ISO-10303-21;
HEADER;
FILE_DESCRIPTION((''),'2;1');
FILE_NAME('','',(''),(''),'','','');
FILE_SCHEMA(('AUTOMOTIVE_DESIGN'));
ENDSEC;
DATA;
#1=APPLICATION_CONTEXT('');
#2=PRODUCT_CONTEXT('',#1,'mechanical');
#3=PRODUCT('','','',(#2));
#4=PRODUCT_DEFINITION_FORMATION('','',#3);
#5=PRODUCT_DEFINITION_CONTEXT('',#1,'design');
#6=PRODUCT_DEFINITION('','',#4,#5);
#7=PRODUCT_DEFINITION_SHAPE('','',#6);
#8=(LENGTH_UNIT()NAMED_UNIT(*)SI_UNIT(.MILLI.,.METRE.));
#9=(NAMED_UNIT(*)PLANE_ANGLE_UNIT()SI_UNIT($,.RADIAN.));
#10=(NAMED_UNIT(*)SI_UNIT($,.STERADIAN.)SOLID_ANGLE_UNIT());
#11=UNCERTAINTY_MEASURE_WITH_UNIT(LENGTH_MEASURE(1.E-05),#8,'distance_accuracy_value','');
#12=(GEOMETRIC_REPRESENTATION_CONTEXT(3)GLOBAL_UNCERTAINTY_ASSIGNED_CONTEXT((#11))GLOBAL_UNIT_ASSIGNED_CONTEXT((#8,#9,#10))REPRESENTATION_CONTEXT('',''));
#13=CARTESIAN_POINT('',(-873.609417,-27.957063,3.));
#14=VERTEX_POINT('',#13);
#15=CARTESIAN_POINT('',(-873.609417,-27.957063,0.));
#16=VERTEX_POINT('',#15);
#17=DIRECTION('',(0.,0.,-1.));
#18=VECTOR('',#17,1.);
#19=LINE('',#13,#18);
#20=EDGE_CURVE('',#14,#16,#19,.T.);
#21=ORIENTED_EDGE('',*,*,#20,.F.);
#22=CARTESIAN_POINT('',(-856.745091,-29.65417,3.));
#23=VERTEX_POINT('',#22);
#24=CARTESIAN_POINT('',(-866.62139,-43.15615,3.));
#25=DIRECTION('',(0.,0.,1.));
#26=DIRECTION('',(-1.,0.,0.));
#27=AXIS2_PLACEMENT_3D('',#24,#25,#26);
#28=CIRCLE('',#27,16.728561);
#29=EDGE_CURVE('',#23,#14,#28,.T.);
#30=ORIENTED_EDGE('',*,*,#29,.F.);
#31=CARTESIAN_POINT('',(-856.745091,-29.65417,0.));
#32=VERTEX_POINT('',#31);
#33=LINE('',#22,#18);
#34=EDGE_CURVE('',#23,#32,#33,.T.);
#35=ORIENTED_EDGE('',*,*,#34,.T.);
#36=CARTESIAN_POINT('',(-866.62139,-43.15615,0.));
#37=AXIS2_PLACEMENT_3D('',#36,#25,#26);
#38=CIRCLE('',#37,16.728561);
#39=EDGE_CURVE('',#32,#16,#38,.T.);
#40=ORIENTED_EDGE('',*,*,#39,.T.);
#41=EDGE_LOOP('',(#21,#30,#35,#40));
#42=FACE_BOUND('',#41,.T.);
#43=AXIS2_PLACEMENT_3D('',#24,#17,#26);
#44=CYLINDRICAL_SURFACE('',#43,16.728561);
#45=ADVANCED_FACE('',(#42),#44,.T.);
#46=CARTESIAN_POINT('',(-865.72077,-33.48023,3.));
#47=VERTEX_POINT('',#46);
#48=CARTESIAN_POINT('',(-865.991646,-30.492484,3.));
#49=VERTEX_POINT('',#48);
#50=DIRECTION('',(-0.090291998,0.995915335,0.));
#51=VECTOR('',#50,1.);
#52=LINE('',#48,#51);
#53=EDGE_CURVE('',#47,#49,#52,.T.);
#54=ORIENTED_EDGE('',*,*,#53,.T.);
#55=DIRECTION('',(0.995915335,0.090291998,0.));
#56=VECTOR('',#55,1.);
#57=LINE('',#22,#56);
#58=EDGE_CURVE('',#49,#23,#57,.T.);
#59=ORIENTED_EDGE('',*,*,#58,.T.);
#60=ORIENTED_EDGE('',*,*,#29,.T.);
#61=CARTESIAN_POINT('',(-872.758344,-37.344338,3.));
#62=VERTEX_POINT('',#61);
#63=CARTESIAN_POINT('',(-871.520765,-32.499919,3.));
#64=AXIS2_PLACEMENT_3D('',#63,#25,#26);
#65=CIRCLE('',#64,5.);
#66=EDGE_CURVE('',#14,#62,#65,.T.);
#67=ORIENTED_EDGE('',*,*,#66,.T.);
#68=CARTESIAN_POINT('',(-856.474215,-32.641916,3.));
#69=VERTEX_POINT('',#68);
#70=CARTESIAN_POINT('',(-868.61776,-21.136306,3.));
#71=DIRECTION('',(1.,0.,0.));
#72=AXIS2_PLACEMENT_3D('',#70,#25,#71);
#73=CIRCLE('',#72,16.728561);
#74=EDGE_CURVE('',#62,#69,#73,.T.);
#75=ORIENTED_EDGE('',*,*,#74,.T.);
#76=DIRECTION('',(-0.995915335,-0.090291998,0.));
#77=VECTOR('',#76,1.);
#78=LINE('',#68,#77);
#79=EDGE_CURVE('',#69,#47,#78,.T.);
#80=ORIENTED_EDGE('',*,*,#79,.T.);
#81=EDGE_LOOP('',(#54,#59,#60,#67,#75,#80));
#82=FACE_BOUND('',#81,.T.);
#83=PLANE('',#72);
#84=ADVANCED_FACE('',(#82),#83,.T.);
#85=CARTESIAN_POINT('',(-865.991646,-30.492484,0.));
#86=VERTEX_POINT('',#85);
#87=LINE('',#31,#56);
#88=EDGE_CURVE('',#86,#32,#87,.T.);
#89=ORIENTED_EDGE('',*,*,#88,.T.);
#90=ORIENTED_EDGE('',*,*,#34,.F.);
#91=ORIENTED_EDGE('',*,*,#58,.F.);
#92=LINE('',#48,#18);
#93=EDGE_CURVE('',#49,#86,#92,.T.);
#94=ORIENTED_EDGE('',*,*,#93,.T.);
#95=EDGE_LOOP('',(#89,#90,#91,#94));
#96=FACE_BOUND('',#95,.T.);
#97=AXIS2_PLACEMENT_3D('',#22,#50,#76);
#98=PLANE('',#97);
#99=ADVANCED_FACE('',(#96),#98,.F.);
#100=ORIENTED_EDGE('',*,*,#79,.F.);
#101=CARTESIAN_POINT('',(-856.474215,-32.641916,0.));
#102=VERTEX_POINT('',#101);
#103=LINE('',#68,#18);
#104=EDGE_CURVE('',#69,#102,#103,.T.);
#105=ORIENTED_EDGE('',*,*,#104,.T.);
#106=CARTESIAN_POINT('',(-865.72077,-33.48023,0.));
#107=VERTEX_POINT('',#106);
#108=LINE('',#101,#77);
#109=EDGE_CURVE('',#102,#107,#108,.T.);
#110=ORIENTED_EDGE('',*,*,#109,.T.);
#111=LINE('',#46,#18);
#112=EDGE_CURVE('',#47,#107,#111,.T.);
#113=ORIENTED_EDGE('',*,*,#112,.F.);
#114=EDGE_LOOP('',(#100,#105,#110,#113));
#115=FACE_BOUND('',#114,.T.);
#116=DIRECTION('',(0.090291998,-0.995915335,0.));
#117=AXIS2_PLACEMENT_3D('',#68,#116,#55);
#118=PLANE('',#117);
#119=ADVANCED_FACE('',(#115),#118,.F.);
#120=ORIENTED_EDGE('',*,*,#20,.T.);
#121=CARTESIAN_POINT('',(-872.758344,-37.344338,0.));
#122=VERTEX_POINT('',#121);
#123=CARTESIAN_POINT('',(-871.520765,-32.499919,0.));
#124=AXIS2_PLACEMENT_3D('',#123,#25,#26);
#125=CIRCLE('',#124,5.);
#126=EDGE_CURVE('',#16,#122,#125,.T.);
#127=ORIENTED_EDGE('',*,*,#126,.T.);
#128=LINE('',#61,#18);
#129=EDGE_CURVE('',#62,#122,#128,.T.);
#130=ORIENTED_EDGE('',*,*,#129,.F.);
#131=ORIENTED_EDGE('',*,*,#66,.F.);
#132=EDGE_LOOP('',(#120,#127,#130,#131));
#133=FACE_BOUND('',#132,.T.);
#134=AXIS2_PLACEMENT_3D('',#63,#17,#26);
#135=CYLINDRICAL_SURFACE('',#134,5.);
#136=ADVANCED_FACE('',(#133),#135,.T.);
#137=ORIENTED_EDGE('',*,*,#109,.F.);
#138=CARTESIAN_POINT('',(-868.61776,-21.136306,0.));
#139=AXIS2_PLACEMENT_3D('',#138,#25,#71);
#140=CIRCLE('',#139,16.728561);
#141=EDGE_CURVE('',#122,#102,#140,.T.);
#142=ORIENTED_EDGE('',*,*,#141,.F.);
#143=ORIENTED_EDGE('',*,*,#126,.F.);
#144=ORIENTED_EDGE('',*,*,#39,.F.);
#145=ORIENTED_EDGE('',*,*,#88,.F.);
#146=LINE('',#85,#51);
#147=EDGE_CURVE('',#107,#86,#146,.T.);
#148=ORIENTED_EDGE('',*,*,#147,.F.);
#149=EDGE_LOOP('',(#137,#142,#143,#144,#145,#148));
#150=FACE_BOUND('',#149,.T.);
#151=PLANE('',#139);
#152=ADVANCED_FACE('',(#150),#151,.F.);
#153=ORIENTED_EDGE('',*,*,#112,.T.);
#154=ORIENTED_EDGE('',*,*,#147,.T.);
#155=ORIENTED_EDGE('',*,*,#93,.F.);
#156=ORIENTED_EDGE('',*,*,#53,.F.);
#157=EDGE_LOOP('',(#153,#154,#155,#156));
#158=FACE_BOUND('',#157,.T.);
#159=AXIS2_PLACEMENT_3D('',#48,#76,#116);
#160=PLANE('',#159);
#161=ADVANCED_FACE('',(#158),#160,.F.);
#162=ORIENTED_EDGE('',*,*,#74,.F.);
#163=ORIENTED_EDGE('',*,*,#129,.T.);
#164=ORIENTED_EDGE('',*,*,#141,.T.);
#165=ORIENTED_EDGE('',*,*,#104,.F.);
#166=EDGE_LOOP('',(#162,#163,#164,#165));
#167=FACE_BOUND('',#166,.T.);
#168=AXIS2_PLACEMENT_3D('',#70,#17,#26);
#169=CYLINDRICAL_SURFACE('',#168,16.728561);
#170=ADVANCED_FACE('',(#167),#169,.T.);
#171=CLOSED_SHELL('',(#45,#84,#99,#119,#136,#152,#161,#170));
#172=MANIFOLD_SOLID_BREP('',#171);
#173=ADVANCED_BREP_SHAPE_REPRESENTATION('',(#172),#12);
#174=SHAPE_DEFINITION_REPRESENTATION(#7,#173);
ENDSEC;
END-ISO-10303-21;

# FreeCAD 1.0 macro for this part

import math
import FreeCAD as App
import Part
import Sketcher

doc = App.newDocument("Part")
body = doc.addObject("PartDesign::Body", "Body")

sketch1 = doc.addObject("Sketcher::SketchObject", "Sketch")
body.addObject(sketch1)
sketch1.AttachmentSupport = (doc.XY_Plane, [""])
sketch1.MapMode = "FlatFace"
sketch1.addGeometry(Part.LineSegment(App.Vector(-856.5, -32.6, 0), App.Vector(-865.7, -33.5, 0)), False)
sketch1.addGeometry(Part.LineSegment(App.Vector(-865.7, -33.5, 0), App.Vector(-866, -30.5, 0)), False)
sketch1.addGeometry(Part.LineSegment(App.Vector(-866, -30.5, 0), App.Vector(-856.7, -29.7, 0)), False)
sketch1.addGeometry(Part.ArcOfCircle(Part.Circle(App.Vector(-866.6, -43.2, 0), App.Vector(0, 0, 1), 16.7), math.radians(54), math.radians(115)), False)
sketch1.addGeometry(Part.ArcOfCircle(Part.Circle(App.Vector(-871.5, -32.5, 0), App.Vector(0, 0, 1), 5), math.radians(115), math.radians(256)), False)
sketch1.addGeometry(Part.ArcOfCircle(Part.Circle(App.Vector(-868.6, -21.1, 0), App.Vector(0, 0, 1), 16.7), math.radians(-104), math.radians(-43)), False)
sketch1.addConstraint(Sketcher.Constraint("Coincident", 0, 2, 1, 1))
sketch1.addConstraint(Sketcher.Constraint("Coincident", 1, 2, 2, 1))
sketch1.addConstraint(Sketcher.Constraint("Coincident", 2, 2, 3, 1))
sketch1.addConstraint(Sketcher.Constraint("Tangent", 3, 2, 4, 1))
sketch1.addConstraint(Sketcher.Constraint("Tangent", 4, 2, 5, 1))
sketch1.addConstraint(Sketcher.Constraint("Coincident", 5, 2, 0, 1))
sketch1.addConstraint(Sketcher.Constraint("Equal", 3, 5))
sketch1.addConstraint(Sketcher.Constraint("Perpendicular", 0, 1))
sketch1.addConstraint(Sketcher.Constraint("Perpendicular", 1, 2))
sketch1.addConstraint(Sketcher.Constraint("Equal", 0, 2))
sketch1.addConstraint(Sketcher.Constraint("Radius", 4, 5.0))
sketch1.addConstraint(Sketcher.Constraint("Distance", 1, 3.0))
sketch1.addConstraint(Sketcher.Constraint("Radius", 3, 16.728561))
sketch1.addConstraint(Sketcher.Constraint("DistanceX", 3, 3, 2, 2, 9.876299))
sketch1.addConstraint(Sketcher.Constraint("DistanceX", 4, 2, 1, 2, 6.766698))
sketch1.addConstraint(Sketcher.Constraint("Distance", 0, 9.28448))
sketch1.addConstraint(Sketcher.Constraint("DistanceX", 3, 3, -1, 1, 866.62139))
sketch1.addConstraint(Sketcher.Constraint("DistanceY", 3, 3, -1, 1, 43.15615))
sketch1.addConstraint(Sketcher.Constraint("DistanceY", 4, 3, -1, 1, 32.499919))
pad1 = doc.addObject("PartDesign::Pad", "Pad")
body.addObject(pad1)
pad1.Profile = sketch1
pad1.Length = 3

doc.recompute()
